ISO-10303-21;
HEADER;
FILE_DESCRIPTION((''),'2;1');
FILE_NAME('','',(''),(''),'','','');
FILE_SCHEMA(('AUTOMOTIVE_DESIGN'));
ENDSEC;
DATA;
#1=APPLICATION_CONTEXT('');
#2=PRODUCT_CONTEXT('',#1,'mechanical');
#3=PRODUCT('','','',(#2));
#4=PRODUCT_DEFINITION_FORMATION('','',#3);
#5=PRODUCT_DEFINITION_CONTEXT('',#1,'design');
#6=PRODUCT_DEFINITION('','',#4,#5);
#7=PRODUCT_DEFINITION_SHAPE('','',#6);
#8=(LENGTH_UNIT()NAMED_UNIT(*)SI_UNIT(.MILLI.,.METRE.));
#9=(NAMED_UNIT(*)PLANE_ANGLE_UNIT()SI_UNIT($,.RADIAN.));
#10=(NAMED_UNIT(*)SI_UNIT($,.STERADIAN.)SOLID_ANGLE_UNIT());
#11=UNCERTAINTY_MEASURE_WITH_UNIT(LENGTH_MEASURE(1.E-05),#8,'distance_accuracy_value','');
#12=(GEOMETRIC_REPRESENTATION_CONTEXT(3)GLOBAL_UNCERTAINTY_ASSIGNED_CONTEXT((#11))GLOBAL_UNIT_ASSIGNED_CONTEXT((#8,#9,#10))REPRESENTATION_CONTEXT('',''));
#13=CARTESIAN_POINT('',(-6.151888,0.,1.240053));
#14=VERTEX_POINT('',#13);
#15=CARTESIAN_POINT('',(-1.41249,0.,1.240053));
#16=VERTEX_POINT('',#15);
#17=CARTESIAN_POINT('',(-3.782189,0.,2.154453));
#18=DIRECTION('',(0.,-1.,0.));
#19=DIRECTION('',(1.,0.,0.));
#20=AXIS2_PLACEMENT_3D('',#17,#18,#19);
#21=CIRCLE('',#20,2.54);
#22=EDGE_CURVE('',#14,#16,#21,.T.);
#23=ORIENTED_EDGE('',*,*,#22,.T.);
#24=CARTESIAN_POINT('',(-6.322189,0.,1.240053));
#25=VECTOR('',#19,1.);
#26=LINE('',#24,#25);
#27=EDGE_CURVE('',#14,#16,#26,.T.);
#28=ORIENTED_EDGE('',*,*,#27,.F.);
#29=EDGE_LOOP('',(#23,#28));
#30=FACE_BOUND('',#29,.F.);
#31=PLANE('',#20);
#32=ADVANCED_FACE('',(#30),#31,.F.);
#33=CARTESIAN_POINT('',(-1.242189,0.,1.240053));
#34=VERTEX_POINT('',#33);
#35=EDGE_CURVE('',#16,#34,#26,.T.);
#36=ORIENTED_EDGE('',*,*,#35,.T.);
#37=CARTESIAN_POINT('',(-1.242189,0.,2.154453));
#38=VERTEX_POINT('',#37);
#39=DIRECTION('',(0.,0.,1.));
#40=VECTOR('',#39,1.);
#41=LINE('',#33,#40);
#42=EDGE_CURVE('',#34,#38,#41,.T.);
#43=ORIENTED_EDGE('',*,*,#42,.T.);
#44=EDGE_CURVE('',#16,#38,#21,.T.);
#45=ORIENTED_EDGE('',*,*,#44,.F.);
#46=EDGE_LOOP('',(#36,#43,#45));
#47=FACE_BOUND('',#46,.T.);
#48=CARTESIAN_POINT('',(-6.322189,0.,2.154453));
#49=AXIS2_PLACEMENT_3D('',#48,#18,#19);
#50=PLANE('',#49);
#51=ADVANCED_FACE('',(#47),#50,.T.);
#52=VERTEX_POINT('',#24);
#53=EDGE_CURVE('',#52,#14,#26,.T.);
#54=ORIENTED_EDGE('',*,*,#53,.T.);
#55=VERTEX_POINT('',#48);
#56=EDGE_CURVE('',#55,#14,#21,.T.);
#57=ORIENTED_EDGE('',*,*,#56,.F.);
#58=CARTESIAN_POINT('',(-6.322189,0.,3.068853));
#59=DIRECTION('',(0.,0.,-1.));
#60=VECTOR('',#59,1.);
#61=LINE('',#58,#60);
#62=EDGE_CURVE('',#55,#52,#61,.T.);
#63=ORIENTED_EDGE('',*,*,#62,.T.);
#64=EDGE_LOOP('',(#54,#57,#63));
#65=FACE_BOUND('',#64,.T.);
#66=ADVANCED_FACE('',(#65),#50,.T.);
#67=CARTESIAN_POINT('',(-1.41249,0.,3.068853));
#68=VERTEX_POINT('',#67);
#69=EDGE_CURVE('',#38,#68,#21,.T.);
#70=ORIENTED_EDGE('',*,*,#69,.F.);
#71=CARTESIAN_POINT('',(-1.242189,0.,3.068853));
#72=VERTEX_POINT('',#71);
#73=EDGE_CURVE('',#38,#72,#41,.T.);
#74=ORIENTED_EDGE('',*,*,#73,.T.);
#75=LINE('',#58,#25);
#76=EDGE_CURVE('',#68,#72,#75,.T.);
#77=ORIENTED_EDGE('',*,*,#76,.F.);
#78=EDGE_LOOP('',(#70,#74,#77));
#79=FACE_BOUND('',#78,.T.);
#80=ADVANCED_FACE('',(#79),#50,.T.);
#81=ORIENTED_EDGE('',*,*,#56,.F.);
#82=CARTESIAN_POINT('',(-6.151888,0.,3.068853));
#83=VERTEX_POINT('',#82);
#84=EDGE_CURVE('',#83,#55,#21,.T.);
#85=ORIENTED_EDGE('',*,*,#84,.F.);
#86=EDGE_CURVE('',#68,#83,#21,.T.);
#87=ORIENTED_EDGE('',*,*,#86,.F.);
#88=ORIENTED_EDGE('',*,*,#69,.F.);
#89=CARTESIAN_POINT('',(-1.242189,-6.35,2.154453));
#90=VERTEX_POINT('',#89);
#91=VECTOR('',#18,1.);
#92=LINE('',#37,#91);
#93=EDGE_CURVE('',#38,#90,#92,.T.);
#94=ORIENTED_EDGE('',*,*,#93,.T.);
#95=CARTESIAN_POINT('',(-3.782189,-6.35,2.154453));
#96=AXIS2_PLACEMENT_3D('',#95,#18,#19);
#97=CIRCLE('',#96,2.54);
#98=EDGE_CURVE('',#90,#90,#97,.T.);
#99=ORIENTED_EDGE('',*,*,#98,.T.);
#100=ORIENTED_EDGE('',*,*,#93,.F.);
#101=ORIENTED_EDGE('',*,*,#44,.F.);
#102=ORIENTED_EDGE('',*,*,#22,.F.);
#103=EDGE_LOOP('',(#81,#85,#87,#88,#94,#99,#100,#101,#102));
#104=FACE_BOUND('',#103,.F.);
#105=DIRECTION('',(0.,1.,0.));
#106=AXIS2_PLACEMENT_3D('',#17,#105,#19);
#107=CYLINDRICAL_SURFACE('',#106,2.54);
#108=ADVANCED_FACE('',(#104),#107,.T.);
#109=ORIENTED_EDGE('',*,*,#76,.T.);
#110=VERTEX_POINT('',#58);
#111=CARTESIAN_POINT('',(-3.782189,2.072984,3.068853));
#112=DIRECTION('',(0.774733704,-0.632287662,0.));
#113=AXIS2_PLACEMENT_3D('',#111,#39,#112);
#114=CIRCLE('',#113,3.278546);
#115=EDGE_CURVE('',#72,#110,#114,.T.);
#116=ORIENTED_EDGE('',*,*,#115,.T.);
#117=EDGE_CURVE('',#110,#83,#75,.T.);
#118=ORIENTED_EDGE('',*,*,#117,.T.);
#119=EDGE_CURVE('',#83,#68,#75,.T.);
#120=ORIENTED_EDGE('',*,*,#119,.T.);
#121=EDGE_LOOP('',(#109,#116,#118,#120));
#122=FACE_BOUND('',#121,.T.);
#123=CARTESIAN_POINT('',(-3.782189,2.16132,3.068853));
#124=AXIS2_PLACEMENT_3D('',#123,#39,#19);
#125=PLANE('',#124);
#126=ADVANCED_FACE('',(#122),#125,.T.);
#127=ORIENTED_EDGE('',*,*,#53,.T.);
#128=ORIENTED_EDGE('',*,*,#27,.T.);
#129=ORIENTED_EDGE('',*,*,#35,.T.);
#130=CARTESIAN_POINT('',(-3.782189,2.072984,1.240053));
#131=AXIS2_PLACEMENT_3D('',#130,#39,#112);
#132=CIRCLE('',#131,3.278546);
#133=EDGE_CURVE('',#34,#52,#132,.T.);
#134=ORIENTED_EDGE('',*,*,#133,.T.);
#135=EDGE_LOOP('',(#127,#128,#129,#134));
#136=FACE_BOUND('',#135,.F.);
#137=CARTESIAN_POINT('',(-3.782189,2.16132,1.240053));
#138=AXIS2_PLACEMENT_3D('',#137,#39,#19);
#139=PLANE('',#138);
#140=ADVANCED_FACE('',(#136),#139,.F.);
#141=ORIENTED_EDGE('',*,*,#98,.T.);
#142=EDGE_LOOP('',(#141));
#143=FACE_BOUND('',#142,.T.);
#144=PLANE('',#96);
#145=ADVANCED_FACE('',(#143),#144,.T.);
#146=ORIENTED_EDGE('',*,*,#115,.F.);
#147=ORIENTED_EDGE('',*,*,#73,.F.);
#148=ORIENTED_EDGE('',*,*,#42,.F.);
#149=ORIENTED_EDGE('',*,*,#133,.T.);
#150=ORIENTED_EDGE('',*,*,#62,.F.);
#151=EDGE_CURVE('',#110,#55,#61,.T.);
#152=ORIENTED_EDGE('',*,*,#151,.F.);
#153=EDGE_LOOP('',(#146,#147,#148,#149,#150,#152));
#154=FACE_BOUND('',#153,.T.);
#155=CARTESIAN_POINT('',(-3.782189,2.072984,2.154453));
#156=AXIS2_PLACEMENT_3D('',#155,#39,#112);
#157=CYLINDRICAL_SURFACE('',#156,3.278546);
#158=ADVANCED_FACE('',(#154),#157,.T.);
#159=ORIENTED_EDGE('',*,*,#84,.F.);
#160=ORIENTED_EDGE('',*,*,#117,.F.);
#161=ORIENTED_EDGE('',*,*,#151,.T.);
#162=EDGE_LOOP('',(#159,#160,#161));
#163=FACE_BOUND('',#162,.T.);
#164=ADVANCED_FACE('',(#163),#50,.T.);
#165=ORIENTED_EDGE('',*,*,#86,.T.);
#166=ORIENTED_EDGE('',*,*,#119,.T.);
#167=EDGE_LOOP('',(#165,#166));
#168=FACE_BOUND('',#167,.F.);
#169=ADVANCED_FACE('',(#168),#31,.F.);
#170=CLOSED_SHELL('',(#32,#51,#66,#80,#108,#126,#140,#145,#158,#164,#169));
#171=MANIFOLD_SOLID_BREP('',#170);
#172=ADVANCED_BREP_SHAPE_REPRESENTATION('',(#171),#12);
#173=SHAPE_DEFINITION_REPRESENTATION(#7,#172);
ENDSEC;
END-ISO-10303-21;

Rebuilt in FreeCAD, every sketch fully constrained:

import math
import FreeCAD as App
import Part
import Sketcher

V = App.Vector
Q = App.Units.Quantity

doc = App.newDocument("Part")
body = doc.addObject("PartDesign::Body", "Body")

# Sketch on XZ plane
sketch1 = body.newObject("Sketcher::SketchObject", "Sketch")
sketch1.AttachmentSupport = (doc.getObject("XZ_Plane"), [""])
sketch1.MapMode = "FlatFace"
sketch1.addGeometry(Part.Circle(V(-3.8, 2.2, 0), V(0, 0, 1), 2.5), False)
sketch1.addConstraint(Sketcher.Constraint("Diameter", 0, Q("0.2 in")))
sketch1.addConstraint(Sketcher.Constraint("DistanceX", 0, 3, -1, 1, 3.782189))
sketch1.addConstraint(Sketcher.Constraint("DistanceY", -1, 1, 0, 3, 2.154453))
pad1 = body.newObject("PartDesign::Pad", "Pad")
pad1.Profile = sketch1
pad1.Length = Q("0.25 in")

# Sketch on XY plane
sketch2 = body.newObject("Sketcher::SketchObject", "Sketch001")
sketch2.AttachmentSupport = (doc.getObject("XY_Plane"), [""])
sketch2.MapMode = "FlatFace"
sketch2.AttachmentOffset = App.Placement(V(0, 0, 2.154453), App.Rotation())
sketch2.addGeometry(Part.LineSegment(V(-6.3, 0, 0), V(-1.2, 0, 0)), False)
sketch2.addGeometry(Part.ArcOfCircle(Part.Circle(V(-3.8, 2.1, 0), V(0, 0, 1), 3.3), math.radians(-39), math.radians(219)), False)
sketch2.addConstraint(Sketcher.Constraint("Coincident", 0, 1, 1, 2))
sketch2.addConstraint(Sketcher.Constraint("Coincident", 1, 1, 0, 2))
sketch2.addConstraint(Sketcher.Constraint("Horizontal", 0))
sketch2.addConstraint(Sketcher.Constraint("PointOnObject", 0, 1, -1))
sketch2.addConstraint(Sketcher.Constraint("DistanceX", 0, 1, 0, 2, Q("0.2 in")))
sketch2.addConstraint(Sketcher.Constraint("Radius", 1, 3.278546))
sketch2.addConstraint(Sketcher.Constraint("DistanceX", 1, 3, -1, 1, 3.782189))
pad2 = body.newObject("PartDesign::Pad", "Pad001")
pad2.Profile = sketch2
pad2.Length = Q("0.072 in")
pad2.Midplane = True

doc.recompute()
